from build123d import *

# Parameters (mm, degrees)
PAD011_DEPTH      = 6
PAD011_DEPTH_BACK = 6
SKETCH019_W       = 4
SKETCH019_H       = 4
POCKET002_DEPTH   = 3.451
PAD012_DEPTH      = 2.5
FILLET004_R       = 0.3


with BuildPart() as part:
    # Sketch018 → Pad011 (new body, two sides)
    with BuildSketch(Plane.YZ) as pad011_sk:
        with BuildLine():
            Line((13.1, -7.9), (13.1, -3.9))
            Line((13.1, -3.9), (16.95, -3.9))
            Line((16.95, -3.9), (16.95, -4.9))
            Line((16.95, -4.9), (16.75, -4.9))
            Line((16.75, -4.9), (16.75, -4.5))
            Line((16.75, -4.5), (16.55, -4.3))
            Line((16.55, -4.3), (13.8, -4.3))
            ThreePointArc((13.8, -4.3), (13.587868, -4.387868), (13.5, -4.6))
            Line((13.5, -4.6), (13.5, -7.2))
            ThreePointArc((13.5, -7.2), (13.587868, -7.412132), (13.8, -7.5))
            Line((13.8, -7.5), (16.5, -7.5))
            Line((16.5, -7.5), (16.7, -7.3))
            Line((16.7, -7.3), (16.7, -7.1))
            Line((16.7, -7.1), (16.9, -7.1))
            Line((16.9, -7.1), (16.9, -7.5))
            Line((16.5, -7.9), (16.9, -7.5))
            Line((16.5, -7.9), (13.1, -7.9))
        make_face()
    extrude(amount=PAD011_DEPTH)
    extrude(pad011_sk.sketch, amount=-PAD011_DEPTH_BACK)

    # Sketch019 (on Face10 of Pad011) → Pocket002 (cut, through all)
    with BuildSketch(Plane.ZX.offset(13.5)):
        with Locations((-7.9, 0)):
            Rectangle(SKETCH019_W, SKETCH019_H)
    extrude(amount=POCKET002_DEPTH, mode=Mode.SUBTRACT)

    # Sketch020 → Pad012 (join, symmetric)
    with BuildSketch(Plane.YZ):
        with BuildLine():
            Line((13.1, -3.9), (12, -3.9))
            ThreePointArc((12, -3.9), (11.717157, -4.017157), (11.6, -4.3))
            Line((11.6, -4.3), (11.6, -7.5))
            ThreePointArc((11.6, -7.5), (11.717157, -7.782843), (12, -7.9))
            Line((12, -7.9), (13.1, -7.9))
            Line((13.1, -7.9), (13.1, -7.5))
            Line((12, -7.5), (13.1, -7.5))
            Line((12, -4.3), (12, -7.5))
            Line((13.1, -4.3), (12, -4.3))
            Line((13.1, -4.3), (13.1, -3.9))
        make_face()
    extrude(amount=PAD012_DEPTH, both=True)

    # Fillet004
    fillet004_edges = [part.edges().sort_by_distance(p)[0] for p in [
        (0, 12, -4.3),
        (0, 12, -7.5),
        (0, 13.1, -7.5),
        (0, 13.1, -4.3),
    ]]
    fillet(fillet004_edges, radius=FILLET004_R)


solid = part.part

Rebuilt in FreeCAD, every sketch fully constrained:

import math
import FreeCAD as App
import Part
import Sketcher
Q = App.Units.Quantity


def edges_at(feature, points):
    """Names of the edges that pass closest to the given points."""
    edges = feature.Shape.Edges
    near = lambda p: min(range(len(edges)), key=lambda i: edges[i].distToShape(Part.Vertex(*p))[0])
    return sorted({f"Edge{near(p) + 1}" for p in points})

doc = App.newDocument("Part")
params = doc.addObject("Spreadsheet::Sheet", "Params")
for row, (alias, value) in enumerate([
    ("sketch1_radius", "0.3 mm"),
    ("sketch1_height", "4 mm"),
    ("sketch1_height2", "1 mm"),
    ("sketch1_width", "3.4 mm"),
    ("sketch1_width2", "0.2 mm"),
    ("pad1_length", "6 mm"),
    ("pad1_length2", "6 mm"),
    ("sketch2_width", "4 mm"),
    ("sketch3_radius", "0.399999 mm"),
    ("sketch3_width", "1.1 mm"),
    ("sketch3_height", "3.2 mm"),
    ("pad2_length", "5 mm"),
    ("fillet_radius", "0.3 mm"),
], start=1):
    params.set(f"A{row}", alias)
    params.set(f"B{row}", "=" + value)
    params.setAlias(f"B{row}", alias)

body = doc.addObject("PartDesign::Body", "Body")

sketch1 = doc.addObject("Sketcher::SketchObject", "Sketch")
body.addObject(sketch1)
sketch1.AttachmentSupport = (doc.YZ_Plane, [""])
sketch1.MapMode = "FlatFace"
sketch1.addGeometry([
    Part.LineSegment(App.Vector(13.1, -3.9, 0), App.Vector(13.1, -7.9, 0)),
    Part.LineSegment(App.Vector(13.1, -7.9, 0), App.Vector(16.5, -7.9, 0)),
    Part.LineSegment(App.Vector(16.5, -7.9, 0), App.Vector(16.9, -7.5, 0)),
    Part.LineSegment(App.Vector(16.9, -7.5, 0), App.Vector(16.9, -7.1, 0)),
    Part.LineSegment(App.Vector(16.9, -7.1, 0), App.Vector(16.7, -7.1, 0)),
    Part.LineSegment(App.Vector(16.7, -7.1, 0), App.Vector(16.7, -7.3, 0)),
    Part.LineSegment(App.Vector(16.7, -7.3, 0), App.Vector(16.5, -7.5, 0)),
    Part.LineSegment(App.Vector(16.5, -7.5, 0), App.Vector(13.8, -7.5, 0)),
    Part.ArcOfCircle(Part.Circle(App.Vector(13.8, -7.2, 0), App.Vector(0, 0, 1), 0.3), math.radians(-180), math.radians(-90)),
    Part.LineSegment(App.Vector(13.5, -7.2, 0), App.Vector(13.5, -4.6, 0)),
    Part.ArcOfCircle(Part.Circle(App.Vector(13.8, -4.6, 0), App.Vector(0, 0, 1), 0.3), math.radians(90), math.radians(180)),
    Part.LineSegment(App.Vector(13.8, -4.3, 0), App.Vector(16.55, -4.3, 0)),
    Part.LineSegment(App.Vector(16.55, -4.3, 0), App.Vector(16.75, -4.5, 0)),
    Part.LineSegment(App.Vector(16.75, -4.5, 0), App.Vector(16.75, -4.9, 0)),
    Part.LineSegment(App.Vector(16.75, -4.9, 0), App.Vector(16.95, -4.9, 0)),
    Part.LineSegment(App.Vector(16.95, -4.9, 0), App.Vector(16.95, -3.9, 0)),
    Part.LineSegment(App.Vector(16.95, -3.9, 0), App.Vector(13.1, -3.9, 0)),
], False)
sketch1.addConstraint([
    Sketcher.Constraint("Coincident", 0, 2, 1, 1),
    Sketcher.Constraint("Coincident", 1, 2, 2, 1),
    Sketcher.Constraint("Coincident", 2, 2, 3, 1),
    Sketcher.Constraint("Coincident", 3, 2, 4, 1),
    Sketcher.Constraint("Coincident", 4, 2, 5, 1),
    Sketcher.Constraint("Coincident", 5, 2, 6, 1),
    Sketcher.Constraint("Coincident", 6, 2, 7, 1),
    Sketcher.Constraint("Tangent", 7, 2, 8, 2),
    Sketcher.Constraint("Tangent", 8, 1, 9, 1),
    Sketcher.Constraint("Tangent", 9, 2, 10, 2),
    Sketcher.Constraint("Tangent", 10, 1, 11, 1),
    Sketcher.Constraint("Coincident", 11, 2, 12, 1),
    Sketcher.Constraint("Coincident", 12, 2, 13, 1),
    Sketcher.Constraint("Coincident", 13, 2, 14, 1),
    Sketcher.Constraint("Coincident", 14, 2, 15, 1),
    Sketcher.Constraint("Coincident", 15, 2, 16, 1),
    Sketcher.Constraint("Coincident", 16, 2, 0, 1),
    Sketcher.Constraint("Vertical", 0),
    Sketcher.Constraint("Horizontal", 1),
    Sketcher.Constraint("Vertical", 3),
    Sketcher.Constraint("Horizontal", 4),
    Sketcher.Constraint("Vertical", 5),
    Sketcher.Constraint("Horizontal", 7),
    Sketcher.Constraint("Vertical", 9),
    Sketcher.Constraint("Horizontal", 11),
    Sketcher.Constraint("Vertical", 13),
    Sketcher.Constraint("Horizontal", 14),
    Sketcher.Constraint("Vertical", 15),
    Sketcher.Constraint("Horizontal", 16),
    Sketcher.Constraint("Equal", 8, 10),
    Sketcher.Constraint("Parallel", 2, 6),
    Sketcher.Constraint("Perpendicular", 6, 12),
    Sketcher.Constraint("Horizontal", 2, 2, 6, 2),
    Sketcher.Constraint("Vertical", 1, 2, 6, 2),
    Sketcher.Constraint("Equal", 4, 14),
    Sketcher.Constraint("Equal", 14, 5),
    Sketcher.Constraint("Equal", 3, 13),
    Sketcher.Constraint("Equal", 6, 12),
    Sketcher.Constraint("Radius", 8, Q("0.3 mm")),
    Sketcher.Constraint("DistanceY", 0, 2, 0, 1, Q("4 mm")),
    Sketcher.Constraint("DistanceY", 15, 1, 15, 2, Q("1 mm")),
    Sketcher.Constraint("Angle", 2, Q("45 deg")),
    Sketcher.Constraint("DistanceX", 1, 1, 1, 2, Q("3.4 mm")),
    Sketcher.Constraint("DistanceX", 4, 2, 4, 1, Q("0.2 mm")),
    Sketcher.Constraint("DistanceX", 7, 2, 7, 1, Q("2.7 mm")),
    Sketcher.Constraint("DistanceY", 3, 1, 3, 2, Q("0.4 mm")),
    Sketcher.Constraint("DistanceX", 11, 1, 11, 2, Q("2.75 mm")),
    Sketcher.Constraint("DistanceX", -1, 1, 8, 3, Q("13.8 mm")),
    Sketcher.Constraint("DistanceY", 8, 3, -1, 1, Q("7.2 mm")),
])
sketch1.setExpression("Constraints[38]", "Params.sketch1_radius")
sketch1.setExpression("Constraints[39]", "Params.sketch1_height")
sketch1.setExpression("Constraints[40]", "Params.sketch1_height2")
sketch1.setExpression("Constraints[42]", "Params.sketch1_width")
sketch1.setExpression("Constraints[43]", "Params.sketch1_width2")
pad1 = doc.addObject("PartDesign::Pad", "Pad")
body.addObject(pad1)
pad1.Profile = sketch1
pad1.Type = "TwoLengths"
pad1.setExpression("Length", "Params.pad1_length")
pad1.setExpression("Length2", "Params.pad1_length2")

sketch2 = doc.addObject("Sketcher::SketchObject", "Sketch001")
body.addObject(sketch2)
sketch2.AttachmentSupport = (doc.XZ_Plane, [""])
sketch2.MapMode = "FlatFace"
sketch2.AttachmentOffset = App.Placement(App.Vector(0, 0, -13.5), App.Rotation())
sketch2.addGeometry([
    Part.LineSegment(App.Vector(2, -9.9, 0), App.Vector(-2, -9.9, 0)),
    Part.LineSegment(App.Vector(-2, -9.9, 0), App.Vector(-2, -5.9, 0)),
    Part.LineSegment(App.Vector(-2, -5.9, 0), App.Vector(2, -5.9, 0)),
    Part.LineSegment(App.Vector(2, -5.9, 0), App.Vector(2, -9.9, 0)),
], False)
sketch2.addConstraint([
    Sketcher.Constraint("Coincident", 0, 2, 1, 1),
    Sketcher.Constraint("Coincident", 1, 2, 2, 1),
    Sketcher.Constraint("Coincident", 2, 2, 3, 1),
    Sketcher.Constraint("Coincident", 3, 2, 0, 1),
    Sketcher.Constraint("Horizontal", 0),
    Sketcher.Constraint("Vertical", 1),
    Sketcher.Constraint("Horizontal", 2),
    Sketcher.Constraint("Vertical", 3),
    Sketcher.Constraint("Equal", 2, 1),
    Sketcher.Constraint("DistanceX", 0, 2, 0, 1, Q("4 mm")),
    Sketcher.Constraint("DistanceX", 0, 2, -1, 1, Q("2 mm")),
    Sketcher.Constraint("DistanceY", 0, 2, -1, 1, Q("9.9 mm")),
])
sketch2.setExpression("Constraints[9]", "Params.sketch2_width")
pocket1 = doc.addObject("PartDesign::Pocket", "Pocket")
body.addObject(pocket1)
pocket1.Profile = sketch2
pocket1.Type = "ThroughAll"

sketch3 = doc.addObject("Sketcher::SketchObject", "Sketch002")
body.addObject(sketch3)
sketch3.AttachmentSupport = (doc.YZ_Plane, [""])
sketch3.MapMode = "FlatFace"
sketch3.addGeometry([
    Part.LineSegment(App.Vector(13.1, -3.9, 0), App.Vector(12, -3.9, 0)),
    Part.ArcOfCircle(Part.Circle(App.Vector(12, -4.3, 0), App.Vector(0, 0, 1), 0.4), math.radians(90), math.radians(180)),
    Part.LineSegment(App.Vector(11.6, -4.3, 0), App.Vector(11.6, -7.5, 0)),
    Part.ArcOfCircle(Part.Circle(App.Vector(12, -7.5, 0), App.Vector(0, 0, 1), 0.4), math.radians(180), math.radians(270)),
    Part.LineSegment(App.Vector(12, -7.9, 0), App.Vector(13.1, -7.9, 0)),
    Part.LineSegment(App.Vector(13.1, -7.9, 0), App.Vector(13.1, -7.5, 0)),
    Part.LineSegment(App.Vector(13.1, -7.5, 0), App.Vector(12, -7.5, 0)),
    Part.LineSegment(App.Vector(12, -7.5, 0), App.Vector(12, -4.3, 0)),
    Part.LineSegment(App.Vector(12, -4.3, 0), App.Vector(13.1, -4.3, 0)),
    Part.LineSegment(App.Vector(13.1, -4.3, 0), App.Vector(13.1, -3.9, 0)),
], False)
sketch3.addConstraint([
    Sketcher.Constraint("Coincident", 0, 2, 1, 1),
    Sketcher.Constraint("Coincident", 1, 2, 2, 1),
    Sketcher.Constraint("Coincident", 2, 2, 3, 1),
    Sketcher.Constraint("Coincident", 3, 2, 4, 1),
    Sketcher.Constraint("Coincident", 4, 2, 5, 1),
    Sketcher.Constraint("Coincident", 5, 2, 6, 1),
    Sketcher.Constraint("Coincident", 6, 2, 7, 1),
    Sketcher.Constraint("Coincident", 7, 2, 8, 1),
    Sketcher.Constraint("Coincident", 8, 2, 9, 1),
    Sketcher.Constraint("Coincident", 9, 2, 0, 1),
    Sketcher.Constraint("Horizontal", 0),
    Sketcher.Constraint("Vertical", 2),
    Sketcher.Constraint("Horizontal", 4),
    Sketcher.Constraint("Vertical", 5),
    Sketcher.Constraint("Horizontal", 6),
    Sketcher.Constraint("Vertical", 7),
    Sketcher.Constraint("Horizontal", 8),
    Sketcher.Constraint("Vertical", 9),
    Sketcher.Constraint("Coincident", 6, 2, 3, 3),
    Sketcher.Constraint("Coincident", 7, 2, 1, 3),
    Sketcher.Constraint("Horizontal", 3, 3, 2, 2),
    Sketcher.Constraint("Horizontal", 1, 2, 7, 2),
    Sketcher.Constraint("Vertical", 3, 3, 0, 2),
    Sketcher.Constraint("Vertical", 0, 2, 3, 2),
    Sketcher.Constraint("Vertical", 5, 2, 8, 2),
    Sketcher.Constraint("Radius", 1, Q("0.399999 mm")),
    Sketcher.Constraint("DistanceX", 0, 2, 0, 1, Q("1.1 mm")),
    Sketcher.Constraint("DistanceY", 2, 2, 2, 1, Q("3.2 mm")),
    Sketcher.Constraint("DistanceX", -1, 1, 1, 3, Q("11.999999 mm")),
    Sketcher.Constraint("DistanceY", 1, 3, -1, 1, Q("4.299999 mm")),
])
sketch3.setExpression("Constraints[25]", "Params.sketch3_radius")
sketch3.setExpression("Constraints[26]", "Params.sketch3_width")
sketch3.setExpression("Constraints[27]", "Params.sketch3_height")
pad2 = doc.addObject("PartDesign::Pad", "Pad001")
body.addObject(pad2)
pad2.Profile = sketch3
pad2.setExpression("Length", "Params.pad2_length")
pad2.Midplane = True
doc.recompute()

fillet = doc.addObject("PartDesign::Fillet", "Fillet")
body.addObject(fillet)
fillet.Base = (pad2, edges_at(pad2, [
    (0, 12, -4.3),
    (0, 12, -7.5),
    (0, 13.1, -7.5),
    (0, 13.1, -4.3),
]))
fillet.setExpression("Radius", "Params.fillet_radius")

doc.recompute()
